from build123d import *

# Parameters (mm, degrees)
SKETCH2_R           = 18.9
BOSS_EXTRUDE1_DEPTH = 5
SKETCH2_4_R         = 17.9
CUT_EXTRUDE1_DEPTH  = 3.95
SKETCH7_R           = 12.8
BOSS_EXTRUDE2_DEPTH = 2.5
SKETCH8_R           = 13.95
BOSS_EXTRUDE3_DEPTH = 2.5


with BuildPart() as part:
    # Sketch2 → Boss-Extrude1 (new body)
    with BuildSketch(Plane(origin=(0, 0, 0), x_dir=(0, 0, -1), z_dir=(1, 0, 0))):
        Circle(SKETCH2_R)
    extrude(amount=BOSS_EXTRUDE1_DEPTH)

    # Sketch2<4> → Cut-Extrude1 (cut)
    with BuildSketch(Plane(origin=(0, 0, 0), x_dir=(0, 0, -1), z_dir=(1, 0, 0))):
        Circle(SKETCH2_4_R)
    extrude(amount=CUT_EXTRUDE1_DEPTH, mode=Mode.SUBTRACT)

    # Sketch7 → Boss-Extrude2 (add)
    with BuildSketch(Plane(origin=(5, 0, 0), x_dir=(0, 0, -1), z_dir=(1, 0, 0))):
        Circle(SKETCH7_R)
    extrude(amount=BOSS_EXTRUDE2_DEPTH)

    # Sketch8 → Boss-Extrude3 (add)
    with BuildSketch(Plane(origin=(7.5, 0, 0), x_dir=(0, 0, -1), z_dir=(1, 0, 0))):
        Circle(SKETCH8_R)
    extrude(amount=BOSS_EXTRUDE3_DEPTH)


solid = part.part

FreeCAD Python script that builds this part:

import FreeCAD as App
import Part
import Sketcher
Q = App.Units.Quantity

doc = App.newDocument("Part")
body = doc.addObject("PartDesign::Body", "Body")

sketch1 = body.newObject("Sketcher::SketchObject", "Sketch")
sketch1.AttachmentSupport = (doc.getObject("YZ_Plane"), [""])
sketch1.MapMode = "FlatFace"
sketch1.addGeometry(Part.Circle(App.Vector(0, 0, 0), App.Vector(0, 0, 1), 18.9), False)
sketch1.addConstraint(Sketcher.Constraint("Coincident", 0, 3, -1, 1))
sketch1.addConstraint(Sketcher.Constraint("Diameter", 0, Q("37.8 mm")))
pad1 = body.newObject("PartDesign::Pad", "Pad")
pad1.Profile = sketch1
pad1.Length = 5

sketch2 = body.newObject("Sketcher::SketchObject", "Sketch001")
sketch2.AttachmentSupport = (doc.getObject("YZ_Plane"), [""])
sketch2.MapMode = "FlatFace"
sketch2.addGeometry(Part.Circle(App.Vector(0, 0, 0), App.Vector(0, 0, 1), 17.9), False)
sketch2.addConstraint(Sketcher.Constraint("Coincident", 0, 3, -1, 1))
sketch2.addConstraint(Sketcher.Constraint("Diameter", 0, Q("35.8 mm")))
pocket1 = body.newObject("PartDesign::Pocket", "Pocket")
pocket1.Profile = sketch2
pocket1.Length = 3.95
pocket1.Reversed = True

sketch3 = body.newObject("Sketcher::SketchObject", "Sketch002")
sketch3.AttachmentSupport = (doc.getObject("YZ_Plane"), [""])
sketch3.MapMode = "FlatFace"
sketch3.AttachmentOffset = App.Placement(App.Vector(0, 0, 5), App.Rotation())
sketch3.addGeometry(Part.Circle(App.Vector(0, 0, 0), App.Vector(0, 0, 1), 12.8), False)
sketch3.addConstraint(Sketcher.Constraint("Coincident", 0, 3, -1, 1))
sketch3.addConstraint(Sketcher.Constraint("Diameter", 0, Q("25.6 mm")))
pad2 = body.newObject("PartDesign::Pad", "Pad001")
pad2.Profile = sketch3
pad2.Length = 2.5

sketch4 = body.newObject("Sketcher::SketchObject", "Sketch003")
sketch4.AttachmentSupport = (doc.getObject("YZ_Plane"), [""])
sketch4.MapMode = "FlatFace"
sketch4.AttachmentOffset = App.Placement(App.Vector(0, 0, 7.5), App.Rotation())
sketch4.addGeometry(Part.Circle(App.Vector(0, 0, 0), App.Vector(0, 0, 1), 13.95), False)
sketch4.addConstraint(Sketcher.Constraint("Coincident", 0, 3, -1, 1))
sketch4.addConstraint(Sketcher.Constraint("Diameter", 0, Q("27.9 mm")))
pad3 = body.newObject("PartDesign::Pad", "Pad002")
pad3.Profile = sketch4
pad3.Length = 2.5

doc.recompute()
